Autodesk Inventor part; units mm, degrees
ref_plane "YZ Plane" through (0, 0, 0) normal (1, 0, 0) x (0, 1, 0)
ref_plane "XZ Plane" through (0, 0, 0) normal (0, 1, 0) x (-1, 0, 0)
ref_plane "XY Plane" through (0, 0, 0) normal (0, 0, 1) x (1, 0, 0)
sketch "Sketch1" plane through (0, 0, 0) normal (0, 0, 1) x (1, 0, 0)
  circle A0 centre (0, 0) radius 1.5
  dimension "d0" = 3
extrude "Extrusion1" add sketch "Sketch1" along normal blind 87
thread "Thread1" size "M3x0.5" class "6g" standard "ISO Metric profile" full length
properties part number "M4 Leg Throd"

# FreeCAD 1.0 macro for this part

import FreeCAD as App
import Part
import Sketcher

doc = App.newDocument("Part")
body = doc.addObject("PartDesign::Body", "Body")

sketch1 = doc.addObject("Sketcher::SketchObject", "Sketch")
body.addObject(sketch1)
sketch1.AttachmentSupport = (doc.XY_Plane, [""])
sketch1.MapMode = "FlatFace"
sketch1.addGeometry(Part.Circle(App.Vector(0, 0, 0), App.Vector(0, 0, 1), 1.5), False)
sketch1.addConstraint([
    Sketcher.Constraint("Coincident", 0, 3, -1, 1),
    Sketcher.Constraint("Diameter", 0, 3.0),
])
pad1 = doc.addObject("PartDesign::Pad", "Pad")
body.addObject(pad1)
pad1.Profile = sketch1
pad1.Length = 87

doc.recompute()
